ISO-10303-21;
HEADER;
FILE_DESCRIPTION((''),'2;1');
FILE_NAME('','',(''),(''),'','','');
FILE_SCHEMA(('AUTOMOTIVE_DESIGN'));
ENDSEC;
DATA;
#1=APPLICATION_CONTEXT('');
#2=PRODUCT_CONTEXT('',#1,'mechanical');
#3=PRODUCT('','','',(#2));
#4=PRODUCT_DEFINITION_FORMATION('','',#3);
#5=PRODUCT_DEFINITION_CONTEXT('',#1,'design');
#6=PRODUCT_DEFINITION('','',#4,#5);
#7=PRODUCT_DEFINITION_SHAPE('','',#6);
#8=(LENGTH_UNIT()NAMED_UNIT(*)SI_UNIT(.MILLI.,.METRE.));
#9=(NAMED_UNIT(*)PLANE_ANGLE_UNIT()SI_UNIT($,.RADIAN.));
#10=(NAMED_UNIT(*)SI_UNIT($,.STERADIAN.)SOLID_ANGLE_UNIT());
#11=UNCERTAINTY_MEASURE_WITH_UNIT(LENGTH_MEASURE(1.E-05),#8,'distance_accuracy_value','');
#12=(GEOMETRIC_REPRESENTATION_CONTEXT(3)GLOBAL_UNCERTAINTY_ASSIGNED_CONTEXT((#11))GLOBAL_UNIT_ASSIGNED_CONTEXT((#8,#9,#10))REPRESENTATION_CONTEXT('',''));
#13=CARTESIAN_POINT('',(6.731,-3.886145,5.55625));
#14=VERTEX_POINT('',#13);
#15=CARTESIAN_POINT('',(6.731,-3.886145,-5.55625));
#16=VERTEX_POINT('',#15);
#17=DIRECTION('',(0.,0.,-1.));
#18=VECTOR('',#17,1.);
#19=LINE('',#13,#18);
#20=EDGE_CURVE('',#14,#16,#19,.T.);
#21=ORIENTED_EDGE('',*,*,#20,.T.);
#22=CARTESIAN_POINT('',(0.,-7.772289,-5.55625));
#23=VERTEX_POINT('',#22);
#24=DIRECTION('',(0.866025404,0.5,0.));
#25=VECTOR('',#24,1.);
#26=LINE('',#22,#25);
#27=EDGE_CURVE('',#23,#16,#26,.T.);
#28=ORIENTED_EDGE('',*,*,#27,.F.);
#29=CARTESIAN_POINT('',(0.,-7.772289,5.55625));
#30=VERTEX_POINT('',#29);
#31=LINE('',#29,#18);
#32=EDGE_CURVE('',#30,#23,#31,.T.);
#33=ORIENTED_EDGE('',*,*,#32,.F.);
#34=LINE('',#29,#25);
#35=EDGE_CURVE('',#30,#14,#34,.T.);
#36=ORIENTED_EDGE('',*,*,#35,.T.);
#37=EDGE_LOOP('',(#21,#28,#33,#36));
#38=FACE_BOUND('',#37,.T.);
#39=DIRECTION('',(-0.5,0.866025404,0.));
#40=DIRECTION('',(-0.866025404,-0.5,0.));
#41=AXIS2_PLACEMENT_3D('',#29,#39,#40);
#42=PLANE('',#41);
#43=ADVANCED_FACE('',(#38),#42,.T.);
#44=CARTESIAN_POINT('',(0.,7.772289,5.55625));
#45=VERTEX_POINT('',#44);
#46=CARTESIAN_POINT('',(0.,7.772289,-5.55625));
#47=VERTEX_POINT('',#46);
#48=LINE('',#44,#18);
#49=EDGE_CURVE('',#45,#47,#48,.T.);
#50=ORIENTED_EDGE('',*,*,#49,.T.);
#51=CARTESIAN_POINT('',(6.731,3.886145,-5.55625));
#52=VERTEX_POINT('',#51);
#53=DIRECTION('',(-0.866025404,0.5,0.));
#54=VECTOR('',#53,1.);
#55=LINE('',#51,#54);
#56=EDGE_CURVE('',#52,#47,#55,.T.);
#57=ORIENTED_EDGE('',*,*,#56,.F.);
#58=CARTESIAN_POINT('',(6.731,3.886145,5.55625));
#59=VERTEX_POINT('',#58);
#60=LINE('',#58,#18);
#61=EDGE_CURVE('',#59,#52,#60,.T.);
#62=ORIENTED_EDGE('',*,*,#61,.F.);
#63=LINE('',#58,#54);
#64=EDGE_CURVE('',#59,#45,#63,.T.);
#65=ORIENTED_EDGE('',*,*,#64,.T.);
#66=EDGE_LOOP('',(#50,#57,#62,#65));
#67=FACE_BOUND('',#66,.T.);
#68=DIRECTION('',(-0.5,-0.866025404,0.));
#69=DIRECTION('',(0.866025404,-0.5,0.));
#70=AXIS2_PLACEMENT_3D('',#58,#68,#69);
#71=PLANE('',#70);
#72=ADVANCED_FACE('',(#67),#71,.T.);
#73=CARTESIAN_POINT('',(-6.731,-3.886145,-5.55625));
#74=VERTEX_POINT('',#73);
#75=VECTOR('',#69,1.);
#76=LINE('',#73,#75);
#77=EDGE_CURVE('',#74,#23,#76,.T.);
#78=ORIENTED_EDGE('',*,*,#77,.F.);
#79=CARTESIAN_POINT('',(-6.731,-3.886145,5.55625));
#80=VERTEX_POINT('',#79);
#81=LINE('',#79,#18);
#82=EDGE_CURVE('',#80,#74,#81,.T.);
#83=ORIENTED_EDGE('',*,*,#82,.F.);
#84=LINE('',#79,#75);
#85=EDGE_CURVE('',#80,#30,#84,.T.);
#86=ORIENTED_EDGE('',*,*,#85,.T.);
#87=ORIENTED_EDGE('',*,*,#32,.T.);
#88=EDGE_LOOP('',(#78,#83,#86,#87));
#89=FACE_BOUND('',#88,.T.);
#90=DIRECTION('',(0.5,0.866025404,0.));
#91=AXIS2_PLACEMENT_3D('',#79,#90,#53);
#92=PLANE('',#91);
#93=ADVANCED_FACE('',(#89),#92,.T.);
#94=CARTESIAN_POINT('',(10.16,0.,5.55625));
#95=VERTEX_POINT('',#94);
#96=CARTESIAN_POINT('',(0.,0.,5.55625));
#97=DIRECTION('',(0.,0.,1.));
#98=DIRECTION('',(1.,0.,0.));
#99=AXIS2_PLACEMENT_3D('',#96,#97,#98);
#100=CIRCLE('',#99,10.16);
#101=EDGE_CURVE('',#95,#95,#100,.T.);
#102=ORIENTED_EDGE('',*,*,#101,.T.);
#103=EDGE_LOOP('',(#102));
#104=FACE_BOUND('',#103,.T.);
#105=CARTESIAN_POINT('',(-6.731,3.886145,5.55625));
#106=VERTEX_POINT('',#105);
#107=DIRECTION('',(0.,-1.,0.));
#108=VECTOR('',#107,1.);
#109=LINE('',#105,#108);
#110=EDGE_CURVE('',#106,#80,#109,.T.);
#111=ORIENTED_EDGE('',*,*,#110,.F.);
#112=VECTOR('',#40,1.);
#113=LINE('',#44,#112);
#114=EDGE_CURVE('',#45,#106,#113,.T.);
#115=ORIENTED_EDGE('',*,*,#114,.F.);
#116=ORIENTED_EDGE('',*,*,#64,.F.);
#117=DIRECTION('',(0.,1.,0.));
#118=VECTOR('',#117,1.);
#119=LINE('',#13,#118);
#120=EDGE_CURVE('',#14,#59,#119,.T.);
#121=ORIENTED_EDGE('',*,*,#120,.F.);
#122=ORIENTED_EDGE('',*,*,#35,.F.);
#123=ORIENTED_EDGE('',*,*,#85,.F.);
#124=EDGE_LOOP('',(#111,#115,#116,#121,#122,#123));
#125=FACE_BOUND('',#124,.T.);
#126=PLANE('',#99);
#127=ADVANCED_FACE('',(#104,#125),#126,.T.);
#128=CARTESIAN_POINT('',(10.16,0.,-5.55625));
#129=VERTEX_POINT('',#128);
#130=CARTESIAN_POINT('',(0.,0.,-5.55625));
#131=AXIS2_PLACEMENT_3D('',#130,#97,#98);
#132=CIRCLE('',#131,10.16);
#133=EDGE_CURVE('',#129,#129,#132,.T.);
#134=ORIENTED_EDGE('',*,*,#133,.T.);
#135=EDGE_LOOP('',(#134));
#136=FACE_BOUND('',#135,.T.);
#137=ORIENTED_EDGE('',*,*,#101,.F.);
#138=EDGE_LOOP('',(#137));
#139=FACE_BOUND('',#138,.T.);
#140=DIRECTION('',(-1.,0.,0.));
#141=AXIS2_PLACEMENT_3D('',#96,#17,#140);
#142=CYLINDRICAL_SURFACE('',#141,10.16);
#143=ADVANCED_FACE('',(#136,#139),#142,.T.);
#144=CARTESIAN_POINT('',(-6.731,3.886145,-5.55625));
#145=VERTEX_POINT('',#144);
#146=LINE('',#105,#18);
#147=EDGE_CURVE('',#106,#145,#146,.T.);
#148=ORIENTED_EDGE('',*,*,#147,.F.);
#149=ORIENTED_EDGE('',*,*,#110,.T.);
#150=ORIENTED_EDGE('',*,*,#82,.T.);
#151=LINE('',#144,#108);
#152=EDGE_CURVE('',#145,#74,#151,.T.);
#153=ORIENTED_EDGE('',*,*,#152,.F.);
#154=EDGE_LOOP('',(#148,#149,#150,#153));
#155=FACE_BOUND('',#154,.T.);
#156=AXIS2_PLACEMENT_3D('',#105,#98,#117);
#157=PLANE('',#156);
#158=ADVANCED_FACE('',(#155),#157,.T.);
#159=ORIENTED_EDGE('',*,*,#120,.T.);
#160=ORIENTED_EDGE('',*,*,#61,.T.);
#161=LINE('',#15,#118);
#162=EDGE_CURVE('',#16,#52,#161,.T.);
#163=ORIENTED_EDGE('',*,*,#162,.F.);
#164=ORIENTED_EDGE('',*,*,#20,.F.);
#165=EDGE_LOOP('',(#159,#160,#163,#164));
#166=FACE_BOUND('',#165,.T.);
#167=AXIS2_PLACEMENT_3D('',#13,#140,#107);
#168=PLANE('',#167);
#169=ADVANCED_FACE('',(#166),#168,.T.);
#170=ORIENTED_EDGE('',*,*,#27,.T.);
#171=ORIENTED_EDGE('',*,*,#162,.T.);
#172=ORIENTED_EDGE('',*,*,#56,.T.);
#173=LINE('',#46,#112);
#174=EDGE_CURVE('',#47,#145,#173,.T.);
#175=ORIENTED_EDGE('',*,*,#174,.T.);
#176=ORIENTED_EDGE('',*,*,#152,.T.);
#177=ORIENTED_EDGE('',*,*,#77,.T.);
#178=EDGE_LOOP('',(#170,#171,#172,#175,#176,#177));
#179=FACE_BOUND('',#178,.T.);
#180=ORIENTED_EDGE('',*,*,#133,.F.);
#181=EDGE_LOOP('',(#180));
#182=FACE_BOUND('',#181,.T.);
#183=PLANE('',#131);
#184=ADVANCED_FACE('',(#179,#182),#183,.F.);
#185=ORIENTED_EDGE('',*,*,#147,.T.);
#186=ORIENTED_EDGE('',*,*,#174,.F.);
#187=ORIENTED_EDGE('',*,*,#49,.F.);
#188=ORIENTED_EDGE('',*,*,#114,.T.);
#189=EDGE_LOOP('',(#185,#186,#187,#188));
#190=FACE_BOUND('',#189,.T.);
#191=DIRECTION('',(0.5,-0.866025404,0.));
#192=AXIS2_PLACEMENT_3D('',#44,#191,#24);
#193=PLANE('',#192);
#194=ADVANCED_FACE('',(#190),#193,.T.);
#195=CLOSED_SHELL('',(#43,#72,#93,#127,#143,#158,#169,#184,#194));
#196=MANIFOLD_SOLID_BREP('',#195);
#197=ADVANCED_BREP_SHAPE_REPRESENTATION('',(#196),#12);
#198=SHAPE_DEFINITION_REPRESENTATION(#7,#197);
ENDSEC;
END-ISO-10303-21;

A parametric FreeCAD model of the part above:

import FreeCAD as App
import Part
import Sketcher
Q = App.Units.Quantity


def add_polygon(sketch, points):
    """Adds a closed chain of lines whose ends are joined by coincident constraints."""
    first, n = sketch.GeometryCount, len(points)
    for a, b in zip(points, points[1:] + points[:1]):
        sketch.addGeometry(Part.LineSegment(App.Vector(*a, 0), App.Vector(*b, 0)), False)
    for i in range(n):
        sketch.addConstraint(Sketcher.Constraint("Coincident", first + i, 2, first + (i + 1) % n, 1))

doc = App.newDocument("Part")
body = doc.addObject("PartDesign::Body", "Body")

# Sketch on XY plane
sketch1 = body.newObject("Sketcher::SketchObject", "Sketch")
sketch1.AttachmentSupport = (doc.getObject("XY_Plane"), [""])
sketch1.MapMode = "FlatFace"
sketch1.addGeometry(Part.Circle(App.Vector(0, 0, 0), App.Vector(0, 0, 1), 10), False)  # 0
add_polygon(sketch1, [(-7, 4), (0, 8), (7, 4), (7, -4), (0, -8), (-7, -4)])  # lines 1-6
sketch1.addConstraint(Sketcher.Constraint("Vertical", 3))
sketch1.addConstraint(Sketcher.Constraint("Vertical", 6))
sketch1.addConstraint(Sketcher.Constraint("Coincident", 0, 3, -1, 1))
sketch1.addConstraint(Sketcher.Constraint("Symmetric", 1, 2, 4, 2, -1, 1))
sketch1.addConstraint(Sketcher.Constraint("Symmetric", 2, 2, 5, 2, -1, 1))
sketch1.addConstraint(Sketcher.Constraint("PointOnObject", 1, 2, -2))
sketch1.addConstraint(Sketcher.Constraint("Parallel", 1, 4))
sketch1.addConstraint(Sketcher.Constraint("Horizontal", 3, 2, 5, 2))
sketch1.addConstraint(Sketcher.Constraint("Diameter", 0, Q("0.8 in")))
sketch1.addConstraint(Sketcher.Constraint("Angle", 1, Q("30 deg")))
sketch1.addConstraint(Sketcher.Constraint("DistanceX", 5, 2, 3, 2, Q("0.53 in")))
sketch1.addConstraint(Sketcher.Constraint("DistanceY", 3, 2, 3, 1, 7.772289))
pad1 = body.newObject("PartDesign::Pad", "Pad")
pad1.Profile = sketch1
pad1.Length = Q("0.4375 in")
pad1.Midplane = True

doc.recompute()
